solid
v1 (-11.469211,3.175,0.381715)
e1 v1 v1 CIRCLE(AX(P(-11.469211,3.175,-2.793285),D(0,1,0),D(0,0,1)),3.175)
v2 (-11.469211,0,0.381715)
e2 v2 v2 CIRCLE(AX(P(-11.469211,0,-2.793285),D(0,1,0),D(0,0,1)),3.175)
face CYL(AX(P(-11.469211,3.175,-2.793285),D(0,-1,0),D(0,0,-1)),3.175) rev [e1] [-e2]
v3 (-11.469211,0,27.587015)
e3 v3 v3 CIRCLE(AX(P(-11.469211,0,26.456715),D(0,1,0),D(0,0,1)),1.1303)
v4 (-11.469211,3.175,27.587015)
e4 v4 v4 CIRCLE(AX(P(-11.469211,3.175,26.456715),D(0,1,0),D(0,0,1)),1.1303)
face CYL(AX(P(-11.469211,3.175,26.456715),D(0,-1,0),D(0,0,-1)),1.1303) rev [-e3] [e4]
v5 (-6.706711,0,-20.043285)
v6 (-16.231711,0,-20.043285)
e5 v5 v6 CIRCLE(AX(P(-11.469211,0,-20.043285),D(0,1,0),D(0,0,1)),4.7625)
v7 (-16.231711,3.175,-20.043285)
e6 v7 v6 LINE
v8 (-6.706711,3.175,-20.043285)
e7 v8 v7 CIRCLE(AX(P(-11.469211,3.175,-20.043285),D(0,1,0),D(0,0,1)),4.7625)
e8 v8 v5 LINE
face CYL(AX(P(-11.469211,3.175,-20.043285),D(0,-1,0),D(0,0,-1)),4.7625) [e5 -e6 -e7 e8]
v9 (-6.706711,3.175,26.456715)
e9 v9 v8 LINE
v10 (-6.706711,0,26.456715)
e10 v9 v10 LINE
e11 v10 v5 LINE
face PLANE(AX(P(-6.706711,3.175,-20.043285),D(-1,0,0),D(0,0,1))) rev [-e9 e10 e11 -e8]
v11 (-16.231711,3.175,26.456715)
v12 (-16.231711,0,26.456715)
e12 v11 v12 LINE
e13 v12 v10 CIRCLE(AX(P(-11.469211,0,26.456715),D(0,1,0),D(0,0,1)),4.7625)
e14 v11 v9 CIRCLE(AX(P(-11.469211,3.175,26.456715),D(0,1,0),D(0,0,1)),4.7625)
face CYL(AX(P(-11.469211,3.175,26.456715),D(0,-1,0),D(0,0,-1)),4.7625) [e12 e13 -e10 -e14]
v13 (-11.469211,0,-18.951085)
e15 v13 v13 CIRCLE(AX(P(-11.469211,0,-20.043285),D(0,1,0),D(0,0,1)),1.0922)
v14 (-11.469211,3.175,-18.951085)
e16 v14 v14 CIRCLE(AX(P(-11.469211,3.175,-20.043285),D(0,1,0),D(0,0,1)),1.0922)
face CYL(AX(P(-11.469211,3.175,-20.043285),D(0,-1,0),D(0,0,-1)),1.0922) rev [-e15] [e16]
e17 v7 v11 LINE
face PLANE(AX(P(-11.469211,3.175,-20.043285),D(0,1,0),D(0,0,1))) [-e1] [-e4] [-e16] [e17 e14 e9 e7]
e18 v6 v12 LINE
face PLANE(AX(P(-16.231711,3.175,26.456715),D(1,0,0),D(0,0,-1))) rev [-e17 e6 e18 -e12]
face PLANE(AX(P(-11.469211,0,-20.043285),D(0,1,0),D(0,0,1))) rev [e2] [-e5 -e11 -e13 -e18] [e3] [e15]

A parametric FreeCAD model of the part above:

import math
import FreeCAD as App
import Part
import Sketcher
from FreeCAD import Vector
Q = App.Units.Quantity

doc = App.newDocument("Part")
body = doc.addObject("PartDesign::Body", "Body")

sketch1 = body.newObject("Sketcher::SketchObject", "Sketch")
sketch1.AttachmentSupport = (doc.getObject("XZ_Plane"), [""])
sketch1.MapMode = "FlatFace"
sketch1.addGeometry([
    Part.LineSegment(Vector(-6.7, 26.5, 0), Vector(-6.7, -20, 0)),
    Part.ArcOfCircle(Part.Circle(Vector(-11.5, -20, 0), Vector(0, 0, 1), 4.8), math.radians(180), math.radians(360)),
    Part.LineSegment(Vector(-16.2, -20, 0), Vector(-16.2, 26.5, 0)),
    Part.ArcOfCircle(Part.Circle(Vector(-11.5, 26.5, 0), Vector(0, 0, 1), 4.8), math.radians(0), math.radians(180)),
    Part.Circle(Vector(-11.5, 26.5, 0), Vector(0, 0, 1), 1.1),
    Part.Circle(Vector(-11.5, -2.8, 0), Vector(0, 0, 1), 3.2),
    Part.Circle(Vector(-11.5, -20, 0), Vector(0, 0, 1), 1.1),
], False)
sketch1.addConstraint([
    Sketcher.Constraint("Tangent", 0, 2, 1, 2),
    Sketcher.Constraint("Tangent", 1, 1, 2, 1),
    Sketcher.Constraint("Tangent", 2, 2, 3, 2),
    Sketcher.Constraint("Tangent", 3, 1, 0, 1),
    Sketcher.Constraint("Vertical", 0),
    Sketcher.Constraint("Vertical", 2),
    Sketcher.Constraint("Coincident", 4, 3, 3, 3),
    Sketcher.Constraint("Coincident", 6, 3, 1, 3),
    Sketcher.Constraint("Vertical", 4, 3, 5, 3),
    Sketcher.Constraint("Diameter", 5, Q("0.25 in")),
    Sketcher.Constraint("Diameter", 4, Q("0.089 in")),
    Sketcher.Constraint("Diameter", 6, Q("0.086 in")),
    Sketcher.Constraint("Radius", 1, Q("0.1875 in")),
    Sketcher.Constraint("DistanceY", 0, 2, 0, 1, 46.5),
    Sketcher.Constraint("DistanceY", 1, 3, 5, 3, 17.25),
    Sketcher.Constraint("DistanceX", 1, 3, -1, 1, 11.469211),
    Sketcher.Constraint("DistanceY", 1, 3, -1, 1, 20.043285),
])
pad1 = body.newObject("PartDesign::Pad", "Pad")
pad1.Profile = sketch1
pad1.Length = Q("0.125 in")
pad1.Reversed = True

doc.recompute()
